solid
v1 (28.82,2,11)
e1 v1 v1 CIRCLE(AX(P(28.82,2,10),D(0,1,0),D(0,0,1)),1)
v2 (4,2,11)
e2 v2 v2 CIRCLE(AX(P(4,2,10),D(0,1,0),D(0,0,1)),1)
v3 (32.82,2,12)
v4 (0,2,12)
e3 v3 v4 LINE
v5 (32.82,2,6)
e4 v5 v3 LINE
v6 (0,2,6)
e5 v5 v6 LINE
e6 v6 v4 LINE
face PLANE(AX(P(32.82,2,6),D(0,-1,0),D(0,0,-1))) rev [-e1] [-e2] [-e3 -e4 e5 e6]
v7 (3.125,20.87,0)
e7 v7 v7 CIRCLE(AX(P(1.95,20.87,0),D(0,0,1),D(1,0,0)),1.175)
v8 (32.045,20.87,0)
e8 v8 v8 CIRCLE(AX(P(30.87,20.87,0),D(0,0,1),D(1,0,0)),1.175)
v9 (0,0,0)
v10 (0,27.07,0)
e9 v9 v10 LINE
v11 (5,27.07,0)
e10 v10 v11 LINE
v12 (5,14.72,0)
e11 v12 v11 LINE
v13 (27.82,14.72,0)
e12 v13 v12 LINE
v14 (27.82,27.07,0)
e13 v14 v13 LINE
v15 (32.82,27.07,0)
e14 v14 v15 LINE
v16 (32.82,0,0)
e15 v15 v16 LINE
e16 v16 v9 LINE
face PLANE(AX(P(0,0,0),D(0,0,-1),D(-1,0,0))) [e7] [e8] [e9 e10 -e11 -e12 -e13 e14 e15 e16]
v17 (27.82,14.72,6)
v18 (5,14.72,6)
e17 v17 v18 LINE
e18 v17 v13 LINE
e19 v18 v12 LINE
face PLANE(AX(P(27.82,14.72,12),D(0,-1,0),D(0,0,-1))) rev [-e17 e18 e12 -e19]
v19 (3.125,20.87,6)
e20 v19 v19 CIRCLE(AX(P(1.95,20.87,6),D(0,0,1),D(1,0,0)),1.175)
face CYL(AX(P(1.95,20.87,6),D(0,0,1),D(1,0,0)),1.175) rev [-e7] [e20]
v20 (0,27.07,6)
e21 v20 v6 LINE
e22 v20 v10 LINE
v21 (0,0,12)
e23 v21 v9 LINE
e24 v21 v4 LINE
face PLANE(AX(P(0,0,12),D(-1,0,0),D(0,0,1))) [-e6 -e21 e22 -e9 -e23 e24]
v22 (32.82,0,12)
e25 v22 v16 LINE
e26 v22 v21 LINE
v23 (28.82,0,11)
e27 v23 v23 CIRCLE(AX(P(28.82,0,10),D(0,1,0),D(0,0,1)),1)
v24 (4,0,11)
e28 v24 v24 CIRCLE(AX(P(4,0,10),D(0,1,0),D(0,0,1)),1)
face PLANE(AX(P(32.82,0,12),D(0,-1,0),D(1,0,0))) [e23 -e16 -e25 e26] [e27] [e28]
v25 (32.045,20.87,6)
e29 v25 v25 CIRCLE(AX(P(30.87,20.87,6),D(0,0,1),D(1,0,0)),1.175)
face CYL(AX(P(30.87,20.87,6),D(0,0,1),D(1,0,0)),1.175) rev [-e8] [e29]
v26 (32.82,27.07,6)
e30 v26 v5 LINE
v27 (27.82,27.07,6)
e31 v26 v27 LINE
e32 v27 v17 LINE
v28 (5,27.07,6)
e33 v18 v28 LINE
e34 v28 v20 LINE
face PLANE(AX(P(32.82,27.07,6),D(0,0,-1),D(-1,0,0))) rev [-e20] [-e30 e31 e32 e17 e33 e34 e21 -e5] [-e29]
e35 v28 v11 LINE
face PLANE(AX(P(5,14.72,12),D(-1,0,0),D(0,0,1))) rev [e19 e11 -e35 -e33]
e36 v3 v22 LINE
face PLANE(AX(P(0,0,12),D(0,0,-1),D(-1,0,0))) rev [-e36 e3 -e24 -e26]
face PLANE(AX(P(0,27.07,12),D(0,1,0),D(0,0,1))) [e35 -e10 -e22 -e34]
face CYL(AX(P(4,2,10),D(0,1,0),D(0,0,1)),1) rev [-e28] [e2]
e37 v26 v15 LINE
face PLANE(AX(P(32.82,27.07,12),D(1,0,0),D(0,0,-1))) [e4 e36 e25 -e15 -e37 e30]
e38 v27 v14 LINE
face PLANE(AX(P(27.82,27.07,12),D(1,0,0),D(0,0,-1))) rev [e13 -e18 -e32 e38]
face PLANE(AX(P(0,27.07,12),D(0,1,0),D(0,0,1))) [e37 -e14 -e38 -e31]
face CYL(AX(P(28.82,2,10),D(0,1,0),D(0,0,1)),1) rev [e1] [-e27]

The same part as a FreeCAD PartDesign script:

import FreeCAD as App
import Part
import Sketcher
Q = App.Units.Quantity


def add_polygon(sketch, points):
    """Adds a closed chain of lines whose ends are joined by coincident constraints."""
    first, n = sketch.GeometryCount, len(points)
    for a, b in zip(points, points[1:] + points[:1]):
        sketch.addGeometry(Part.LineSegment(App.Vector(*a, 0), App.Vector(*b, 0)), False)
    for i in range(n):
        sketch.addConstraint(Sketcher.Constraint("Coincident", first + i, 2, first + (i + 1) % n, 1))

doc = App.newDocument("Part")
body = doc.addObject("PartDesign::Body", "Body")

# Sketch on XY plane
sketch1 = body.newObject("Sketcher::SketchObject", "Sketch")
sketch1.AttachmentSupport = (doc.getObject("XY_Plane"), [""])
sketch1.MapMode = "FlatFace"
add_polygon(sketch1, [(33, 27), (33, 0), (0, 0), (0, 27)])  # lines 0-3
sketch1.addConstraint([
    Sketcher.Constraint("Vertical", 0),
    Sketcher.Constraint("Horizontal", 1),
    Sketcher.Constraint("Vertical", 2),
    Sketcher.Constraint("Horizontal", 3),
    Sketcher.Constraint("Coincident", 1, 2, -1, 1),
    Sketcher.Constraint("DistanceX", 1, 2, 1, 1, Q("32.82 mm")),
    Sketcher.Constraint("DistanceY", 0, 2, 0, 1, Q("27.07 mm")),
])
pad1 = body.newObject("PartDesign::Pad", "Pad")
pad1.Profile = sketch1
pad1.Length = 12

# Sketch on YZ plane
sketch2 = body.newObject("Sketcher::SketchObject", "Sketch001")
sketch2.AttachmentSupport = (doc.getObject("YZ_Plane"), [""])
sketch2.MapMode = "FlatFace"
add_polygon(sketch2, [(27, 6), (2, 6), (2, 12), (27, 12)])  # lines 0-3
sketch2.addConstraint([
    Sketcher.Constraint("Horizontal", 0),
    Sketcher.Constraint("Vertical", 1),
    Sketcher.Constraint("Horizontal", 2),
    Sketcher.Constraint("Vertical", 3),
    Sketcher.Constraint("DistanceY", 1, 1, 1, 2, Q("6 mm")),
    Sketcher.Constraint("DistanceX", -1, 1, 0, 2, Q("2 mm")),
    Sketcher.Constraint("DistanceY", -1, 1, 0, 2, Q("6 mm")),
    Sketcher.Constraint("DistanceX", 0, 2, 0, 1, Q("25.07 mm")),
])
pocket1 = body.newObject("PartDesign::Pocket", "Pocket")
pocket1.Profile = sketch2
pocket1.Type = "ThroughAll"
pocket1.Reversed = True

# Sketch on XY plane
sketch3 = body.newObject("Sketcher::SketchObject", "Sketch002")
sketch3.AttachmentSupport = (doc.getObject("XY_Plane"), [""])
sketch3.MapMode = "FlatFace"
add_polygon(sketch3, [(28, 27), (28, 15), (5, 15), (5, 27)])  # lines 0-3
sketch3.addConstraint([
    Sketcher.Constraint("Vertical", 0),
    Sketcher.Constraint("Horizontal", 1),
    Sketcher.Constraint("Vertical", 2),
    Sketcher.Constraint("Horizontal", 3),
    Sketcher.Constraint("DistanceX", -1, 1, 1, 2, Q("5 mm")),
    Sketcher.Constraint("DistanceX", 1, 2, 1, 1, Q("22.82 mm")),
    Sketcher.Constraint("DistanceY", 0, 2, 0, 1, Q("12.35 mm")),
    Sketcher.Constraint("DistanceY", -1, 1, 0, 2, Q("14.72 mm")),
])
pocket2 = body.newObject("PartDesign::Pocket", "Pocket001")
pocket2.Profile = sketch3
pocket2.Type = "ThroughAll"
pocket2.Reversed = True

# Sketch on XY plane
sketch4 = body.newObject("Sketcher::SketchObject", "Sketch003")
sketch4.AttachmentSupport = (doc.getObject("XY_Plane"), [""])
sketch4.MapMode = "FlatFace"
sketch4.AttachmentOffset = App.Placement(App.Vector(0, 0, 6), App.Rotation())
sketch4.addGeometry([
    Part.Circle(App.Vector(1.9, 20.9, 0), App.Vector(0, 0, 1), 1.2),
    Part.Circle(App.Vector(30.9, 20.9, 0), App.Vector(0, 0, 1), 1.2),
], False)
sketch4.addConstraint([
    Sketcher.Constraint("Equal", 0, 1),
    Sketcher.Constraint("Horizontal", 0, 3, 1, 3),
    Sketcher.Constraint("Diameter", 0, Q("2.35 mm")),
    Sketcher.Constraint("DistanceX", -1, 1, 0, 3, Q("1.95 mm")),
    Sketcher.Constraint("DistanceY", -1, 1, 0, 3, Q("20.87 mm")),
    Sketcher.Constraint("DistanceX", -1, 1, 1, 3, Q("30.87 mm")),
])
doc.recompute()
hole = body.newObject("PartDesign::Hole", "Hole")
hole.Profile = sketch4
hole.ThreadType = "None"
hole.Diameter = 2.35
hole.DepthType = "ThroughAll"

# Sketch on XZ plane
sketch5 = body.newObject("Sketcher::SketchObject", "Sketch004")
sketch5.AttachmentSupport = (doc.getObject("XZ_Plane"), [""])
sketch5.MapMode = "FlatFace"
sketch5.AttachmentOffset = App.Placement(App.Vector(0, 0, -2), App.Rotation())
sketch5.addGeometry([
    Part.Circle(App.Vector(28.8, 10, 0), App.Vector(0, 0, 1), 1),
    Part.Circle(App.Vector(4, 10, 0), App.Vector(0, 0, 1), 1),
], False)
sketch5.addConstraint([
    Sketcher.Constraint("Equal", 0, 1),
    Sketcher.Constraint("Horizontal", 0, 3, 1, 3),
    Sketcher.Constraint("Diameter", 0, Q("2 mm")),
    Sketcher.Constraint("DistanceY", -1, 1, 0, 3, Q("10 mm")),
    Sketcher.Constraint("DistanceX", -1, 1, 1, 3, Q("4 mm")),
    Sketcher.Constraint("DistanceX", -1, 1, 0, 3, Q("28.82 mm")),
])
doc.recompute()
hole2 = body.newObject("PartDesign::Hole", "Hole001")
hole2.Profile = sketch5
hole2.ThreadType = "None"
hole2.Diameter = 2
hole2.DepthType = "ThroughAll"
hole2.Reversed = True

doc.recompute()
